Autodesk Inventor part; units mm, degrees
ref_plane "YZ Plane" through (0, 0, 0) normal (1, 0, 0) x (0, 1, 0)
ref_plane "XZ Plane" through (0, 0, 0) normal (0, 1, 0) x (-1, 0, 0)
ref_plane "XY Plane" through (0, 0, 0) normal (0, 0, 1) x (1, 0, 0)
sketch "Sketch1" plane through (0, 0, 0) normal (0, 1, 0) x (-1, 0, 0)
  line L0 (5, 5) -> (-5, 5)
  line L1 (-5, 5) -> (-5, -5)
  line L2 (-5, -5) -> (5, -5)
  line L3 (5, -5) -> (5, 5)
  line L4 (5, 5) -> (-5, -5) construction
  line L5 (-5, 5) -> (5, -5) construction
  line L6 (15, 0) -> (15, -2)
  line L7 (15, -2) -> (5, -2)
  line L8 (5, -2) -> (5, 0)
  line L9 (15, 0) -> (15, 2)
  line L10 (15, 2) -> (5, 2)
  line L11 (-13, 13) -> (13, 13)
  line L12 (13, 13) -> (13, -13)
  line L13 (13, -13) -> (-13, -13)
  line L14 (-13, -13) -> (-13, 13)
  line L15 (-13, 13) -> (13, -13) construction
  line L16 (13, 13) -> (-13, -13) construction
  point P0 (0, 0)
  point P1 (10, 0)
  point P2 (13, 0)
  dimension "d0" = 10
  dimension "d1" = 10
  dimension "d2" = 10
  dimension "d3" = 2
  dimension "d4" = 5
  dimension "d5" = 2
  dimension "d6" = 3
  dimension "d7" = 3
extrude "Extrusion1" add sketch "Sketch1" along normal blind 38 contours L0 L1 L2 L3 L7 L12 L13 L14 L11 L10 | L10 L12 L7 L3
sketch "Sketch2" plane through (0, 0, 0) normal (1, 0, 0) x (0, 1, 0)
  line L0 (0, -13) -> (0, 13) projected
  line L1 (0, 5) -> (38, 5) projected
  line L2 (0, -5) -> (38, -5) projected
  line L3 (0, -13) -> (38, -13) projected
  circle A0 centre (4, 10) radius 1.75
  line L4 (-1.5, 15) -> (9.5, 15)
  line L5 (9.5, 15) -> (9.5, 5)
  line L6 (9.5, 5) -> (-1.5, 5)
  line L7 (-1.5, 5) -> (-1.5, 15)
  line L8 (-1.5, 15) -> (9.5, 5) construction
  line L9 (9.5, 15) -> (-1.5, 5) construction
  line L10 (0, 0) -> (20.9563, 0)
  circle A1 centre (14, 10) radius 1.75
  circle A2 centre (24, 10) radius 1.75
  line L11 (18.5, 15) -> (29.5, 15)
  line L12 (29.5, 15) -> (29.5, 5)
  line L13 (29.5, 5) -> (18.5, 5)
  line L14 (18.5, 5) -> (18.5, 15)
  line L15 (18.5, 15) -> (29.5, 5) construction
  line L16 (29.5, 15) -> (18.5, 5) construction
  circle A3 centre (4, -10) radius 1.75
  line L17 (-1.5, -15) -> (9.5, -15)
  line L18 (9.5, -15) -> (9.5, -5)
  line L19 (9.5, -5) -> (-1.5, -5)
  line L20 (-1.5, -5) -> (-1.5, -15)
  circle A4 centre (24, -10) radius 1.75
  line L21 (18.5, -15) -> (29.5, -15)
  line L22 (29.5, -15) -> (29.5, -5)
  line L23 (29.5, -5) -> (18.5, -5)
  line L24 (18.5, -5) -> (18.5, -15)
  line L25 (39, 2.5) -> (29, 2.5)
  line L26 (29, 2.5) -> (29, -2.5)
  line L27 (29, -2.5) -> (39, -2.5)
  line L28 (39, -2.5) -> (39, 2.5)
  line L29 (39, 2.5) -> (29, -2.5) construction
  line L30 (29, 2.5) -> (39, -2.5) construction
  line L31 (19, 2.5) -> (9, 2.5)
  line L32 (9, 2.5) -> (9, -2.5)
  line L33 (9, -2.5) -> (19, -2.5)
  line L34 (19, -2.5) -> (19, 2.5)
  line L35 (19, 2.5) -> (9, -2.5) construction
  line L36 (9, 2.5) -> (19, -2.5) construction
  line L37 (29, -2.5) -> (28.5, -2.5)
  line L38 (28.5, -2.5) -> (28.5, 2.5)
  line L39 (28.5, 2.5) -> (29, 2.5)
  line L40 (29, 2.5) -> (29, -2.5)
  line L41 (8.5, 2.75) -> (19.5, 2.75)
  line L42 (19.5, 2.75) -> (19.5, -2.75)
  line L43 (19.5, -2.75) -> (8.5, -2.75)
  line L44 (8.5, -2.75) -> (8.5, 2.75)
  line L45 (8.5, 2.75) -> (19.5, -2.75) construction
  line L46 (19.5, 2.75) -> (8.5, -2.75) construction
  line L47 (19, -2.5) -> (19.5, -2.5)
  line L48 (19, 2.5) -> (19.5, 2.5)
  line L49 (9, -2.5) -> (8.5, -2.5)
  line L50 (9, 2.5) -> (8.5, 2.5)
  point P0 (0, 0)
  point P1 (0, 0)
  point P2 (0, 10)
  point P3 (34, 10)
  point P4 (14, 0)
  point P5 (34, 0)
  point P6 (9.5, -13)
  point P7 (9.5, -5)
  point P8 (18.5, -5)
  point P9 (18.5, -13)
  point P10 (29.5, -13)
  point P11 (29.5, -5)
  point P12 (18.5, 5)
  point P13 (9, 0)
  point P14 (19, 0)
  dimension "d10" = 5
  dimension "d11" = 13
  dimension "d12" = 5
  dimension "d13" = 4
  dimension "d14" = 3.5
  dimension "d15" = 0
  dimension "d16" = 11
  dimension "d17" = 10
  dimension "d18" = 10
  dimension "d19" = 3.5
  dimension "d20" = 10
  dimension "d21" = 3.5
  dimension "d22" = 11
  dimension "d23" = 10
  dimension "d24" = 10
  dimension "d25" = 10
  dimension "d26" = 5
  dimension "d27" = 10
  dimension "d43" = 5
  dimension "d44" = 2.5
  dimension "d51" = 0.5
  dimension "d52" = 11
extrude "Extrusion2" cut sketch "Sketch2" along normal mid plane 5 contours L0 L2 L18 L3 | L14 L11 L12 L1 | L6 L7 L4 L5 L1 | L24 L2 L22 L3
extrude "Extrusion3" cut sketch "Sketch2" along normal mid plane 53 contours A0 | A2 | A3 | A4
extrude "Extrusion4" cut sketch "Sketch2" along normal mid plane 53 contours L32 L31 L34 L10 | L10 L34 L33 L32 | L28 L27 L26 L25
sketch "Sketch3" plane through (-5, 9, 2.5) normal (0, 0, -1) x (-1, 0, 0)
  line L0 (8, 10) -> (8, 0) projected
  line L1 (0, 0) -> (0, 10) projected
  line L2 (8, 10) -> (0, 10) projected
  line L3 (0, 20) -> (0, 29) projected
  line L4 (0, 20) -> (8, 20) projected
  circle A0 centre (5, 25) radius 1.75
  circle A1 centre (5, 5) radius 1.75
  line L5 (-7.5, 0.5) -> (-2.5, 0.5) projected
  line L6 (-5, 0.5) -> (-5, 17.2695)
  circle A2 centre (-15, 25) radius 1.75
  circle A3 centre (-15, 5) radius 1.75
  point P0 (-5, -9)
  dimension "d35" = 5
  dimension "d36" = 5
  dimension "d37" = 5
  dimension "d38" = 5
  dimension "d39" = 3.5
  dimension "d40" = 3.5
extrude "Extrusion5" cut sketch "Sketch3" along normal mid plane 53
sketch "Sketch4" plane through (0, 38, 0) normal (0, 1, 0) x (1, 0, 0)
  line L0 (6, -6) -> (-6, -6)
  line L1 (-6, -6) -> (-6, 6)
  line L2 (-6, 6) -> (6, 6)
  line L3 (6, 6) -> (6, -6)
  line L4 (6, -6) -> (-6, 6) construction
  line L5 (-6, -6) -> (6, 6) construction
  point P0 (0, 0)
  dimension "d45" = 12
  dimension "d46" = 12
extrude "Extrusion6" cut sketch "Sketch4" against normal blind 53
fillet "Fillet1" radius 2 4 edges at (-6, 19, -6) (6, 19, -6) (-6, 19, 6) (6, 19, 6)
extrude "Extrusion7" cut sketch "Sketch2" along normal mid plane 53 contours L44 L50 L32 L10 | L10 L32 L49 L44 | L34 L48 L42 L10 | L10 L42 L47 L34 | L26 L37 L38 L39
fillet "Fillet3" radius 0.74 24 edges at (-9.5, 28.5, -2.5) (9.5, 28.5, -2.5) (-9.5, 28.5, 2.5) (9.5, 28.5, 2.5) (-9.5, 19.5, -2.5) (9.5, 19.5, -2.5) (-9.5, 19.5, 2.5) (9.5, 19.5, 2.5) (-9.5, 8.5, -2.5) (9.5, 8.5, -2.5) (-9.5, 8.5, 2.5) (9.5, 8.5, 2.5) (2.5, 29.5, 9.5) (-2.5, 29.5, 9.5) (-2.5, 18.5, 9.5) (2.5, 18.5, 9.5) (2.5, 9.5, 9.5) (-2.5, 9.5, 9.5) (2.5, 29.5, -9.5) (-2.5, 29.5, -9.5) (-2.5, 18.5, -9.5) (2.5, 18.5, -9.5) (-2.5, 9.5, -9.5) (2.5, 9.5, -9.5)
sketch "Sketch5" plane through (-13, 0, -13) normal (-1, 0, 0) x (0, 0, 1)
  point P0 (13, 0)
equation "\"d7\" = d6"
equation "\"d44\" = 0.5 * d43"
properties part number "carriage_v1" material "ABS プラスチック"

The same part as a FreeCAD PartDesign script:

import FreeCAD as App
import Part
import Sketcher

V = App.Vector
Q = App.Units.Quantity


def edges_at(feature, points):
    """Names of the edges that pass closest to the given points."""
    edges = feature.Shape.Edges
    near = lambda p: min(range(len(edges)), key=lambda i: edges[i].distToShape(Part.Vertex(*p))[0])
    return sorted({f"Edge{near(p) + 1}" for p in points})


def add_polygon(sketch, points):
    """Adds a closed chain of lines whose ends are joined by coincident constraints."""
    first, n = sketch.GeometryCount, len(points)
    for a, b in zip(points, points[1:] + points[:1]):
        sketch.addGeometry(Part.LineSegment(App.Vector(*a, 0), App.Vector(*b, 0)), False)
    for i in range(n):
        sketch.addConstraint(Sketcher.Constraint("Coincident", first + i, 2, first + (i + 1) % n, 1))

doc = App.newDocument("Part")
params = doc.addObject("Spreadsheet::Sheet", "Params")
for row, (alias, value) in enumerate([
    ("sketch1_width", "10 mm"),
    ("sketch1_width2", "26 mm"),
    ("pad1_length", "38 mm"),
    ("sketch2_diameter", "3.5 mm"),
    ("sketch2_width", "11 mm"),
    ("sketch2_height", "10 mm"),
    ("sketch2_width2", "9.5 mm"),
    ("pocket1_length", "5 mm"),
    ("sketch3_diameter", "3.5 mm"),
    ("pocket2_length", "53 mm"),
    ("sketch4_width", "10 mm"),
    ("sketch4_height", "5 mm"),
    ("pocket3_length", "53 mm"),
    ("sketch5_diameter", "3.5 mm"),
    ("pocket4_length", "53 mm"),
    ("sketch6_width", "12 mm"),
    ("pocket5_length", "53 mm"),
    ("fillet_radius", "2 mm"),
    ("sketch7_height", "5 mm"),
    ("sketch7_width", "0.5 mm"),
    ("pocket6_length", "53 mm"),
    ("fillet2_radius", "0.74 mm"),
], start=1):
    params.set(f"A{row}", alias)
    params.set(f"B{row}", "=" + value)
    params.setAlias(f"B{row}", alias)

body = doc.addObject("PartDesign::Body", "Body")

# Sketch on XZ plane
sketch1 = body.newObject("Sketcher::SketchObject", "Sketch")
sketch1.AttachmentSupport = (doc.getObject("XZ_Plane"), [""])
sketch1.MapMode = "FlatFace"
add_polygon(sketch1, [(-13, -13), (-13, 13), (13, 13), (13, -13)])  # lines 0-3
add_polygon(sketch1, [(5, 5), (-5, 5), (-5, -5), (5, -5)])  # lines 4-7
sketch1.addConstraint(Sketcher.Constraint("Vertical", 0))
sketch1.addConstraint(Sketcher.Constraint("Horizontal", 1))
sketch1.addConstraint(Sketcher.Constraint("Vertical", 2))
sketch1.addConstraint(Sketcher.Constraint("Horizontal", 3))
sketch1.addConstraint(Sketcher.Constraint("Horizontal", 4))
sketch1.addConstraint(Sketcher.Constraint("Vertical", 5))
sketch1.addConstraint(Sketcher.Constraint("Horizontal", 6))
sketch1.addConstraint(Sketcher.Constraint("Vertical", 7))
sketch1.addConstraint(Sketcher.Constraint("Symmetric", 0, 2, 2, 2, -1, 1))
sketch1.addConstraint(Sketcher.Constraint("Symmetric", 4, 2, 6, 2, -1, 1))
sketch1.addConstraint(Sketcher.Constraint("Equal", 3, 0))
sketch1.addConstraint(Sketcher.Constraint("Equal", 6, 5))
sketch1.addConstraint(Sketcher.Constraint("DistanceX", 4, 2, 4, 1, Q("10 mm")))
sketch1.addConstraint(Sketcher.Constraint("DistanceX", 1, 1, 1, 2, Q("26 mm")))
sketch1.setExpression("Constraints[20]", "Params.sketch1_width")
sketch1.setExpression("Constraints[21]", "Params.sketch1_width2")
pad1 = body.newObject("PartDesign::Pad", "Pad")
pad1.Profile = sketch1
pad1.setExpression("Length", "Params.pad1_length")
pad1.Reversed = True

# Sketch on YZ plane
sketch2 = body.newObject("Sketcher::SketchObject", "Sketch001")
sketch2.AttachmentSupport = (doc.getObject("YZ_Plane"), [""])
sketch2.MapMode = "FlatFace"
add_polygon(sketch2, [(0, -5), (0, -13), (9.5, -13), (9.5, -5)])  # lines 0-3
sketch2.addGeometry(Part.Circle(V(4, -10, 0), V(0, 0, 1), 1.75), False)  # 4
add_polygon(sketch2, [(18.5, 15), (18.5, 5), (29.5, 5), (29.5, 15)])  # lines 5-8
sketch2.addGeometry(Part.Circle(V(24, 10, 0), V(0, 0, 1), 1.75), False)  # 9
add_polygon(sketch2, [(-1.5, 5), (9.5, 5), (9.5, 15), (-1.5, 15)])  # lines 10-13
sketch2.addGeometry(Part.Circle(V(4, 10, 0), V(0, 0, 1), 1.75), False)  # 14
add_polygon(sketch2, [(18.5, -5), (18.5, -13), (29.5, -13), (29.5, -5)])  # lines 15-18
sketch2.addGeometry(Part.Circle(V(24, -10, 0), V(0, 0, 1), 1.75), False)  # 19
sketch2.addConstraint(Sketcher.Constraint("Vertical", 0))
sketch2.addConstraint(Sketcher.Constraint("Horizontal", 1))
sketch2.addConstraint(Sketcher.Constraint("Vertical", 2))
sketch2.addConstraint(Sketcher.Constraint("Horizontal", 3))
sketch2.addConstraint(Sketcher.Constraint("Vertical", 5))
sketch2.addConstraint(Sketcher.Constraint("Horizontal", 6))
sketch2.addConstraint(Sketcher.Constraint("Vertical", 7))
sketch2.addConstraint(Sketcher.Constraint("Horizontal", 8))
sketch2.addConstraint(Sketcher.Constraint("Horizontal", 10))
sketch2.addConstraint(Sketcher.Constraint("Vertical", 11))
sketch2.addConstraint(Sketcher.Constraint("Horizontal", 12))
sketch2.addConstraint(Sketcher.Constraint("Vertical", 13))
sketch2.addConstraint(Sketcher.Constraint("Vertical", 15))
sketch2.addConstraint(Sketcher.Constraint("Horizontal", 16))
sketch2.addConstraint(Sketcher.Constraint("Vertical", 17))
sketch2.addConstraint(Sketcher.Constraint("Horizontal", 18))
sketch2.addConstraint(Sketcher.Constraint("Equal", 4, 9))
sketch2.addConstraint(Sketcher.Constraint("Equal", 9, 14))
sketch2.addConstraint(Sketcher.Constraint("Equal", 14, 19))
sketch2.addConstraint(Sketcher.Constraint("Symmetric", 4, 3, 14, 3, -1))
sketch2.addConstraint(Sketcher.Constraint("Symmetric", 9, 3, 19, 3, -1))
sketch2.addConstraint(Sketcher.Constraint("Symmetric", 2, 2, 10, 2, -1))
sketch2.addConstraint(Sketcher.Constraint("Symmetric", 6, 2, 17, 2, -1))
sketch2.addConstraint(Sketcher.Constraint("PointOnObject", 0, 2, -2))
sketch2.addConstraint(Sketcher.Constraint("Horizontal", 9, 3, 14, 3))
sketch2.addConstraint(Sketcher.Constraint("Horizontal", 6, 2, 10, 2))
sketch2.addConstraint(Sketcher.Constraint("Horizontal", 8, 2, 11, 2))
sketch2.addConstraint(Sketcher.Constraint("Horizontal", 1, 2, 15, 2))
sketch2.addConstraint(Sketcher.Constraint("Vertical", 8, 2, 15, 2))
sketch2.addConstraint(Sketcher.Constraint("Equal", 8, 10))
sketch2.addConstraint(Sketcher.Constraint("Diameter", 4, Q("3.5 mm")))
sketch2.addConstraint(Sketcher.Constraint("DistanceX", 6, 1, 6, 2, Q("11 mm")))
sketch2.addConstraint(Sketcher.Constraint("DistanceY", 5, 2, 5, 1, Q("10 mm")))
sketch2.addConstraint(Sketcher.Constraint("DistanceX", -1, 1, 4, 3, Q("4 mm")))
sketch2.addConstraint(Sketcher.Constraint("DistanceY", 4, 3, -1, 1, Q("10 mm")))
sketch2.addConstraint(Sketcher.Constraint("DistanceY", 0, 2, -1, 1, Q("13 mm")))
sketch2.addConstraint(Sketcher.Constraint("DistanceY", 2, 2, -1, 1, Q("5 mm")))
sketch2.addConstraint(Sketcher.Constraint("DistanceX", 1, 1, 1, 2, Q("9.5 mm")))
sketch2.addConstraint(Sketcher.Constraint("DistanceX", -1, 1, 9, 3, Q("24 mm")))
sketch2.addConstraint(Sketcher.Constraint("DistanceX", 2, 2, 5, 2, Q("9 mm")))
sketch2.setExpression("Constraints[46]", "Params.sketch2_diameter")
sketch2.setExpression("Constraints[47]", "Params.sketch2_width")
sketch2.setExpression("Constraints[48]", "Params.sketch2_height")
sketch2.setExpression("Constraints[53]", "Params.sketch2_width2")
pocket1 = body.newObject("PartDesign::Pocket", "Pocket")
pocket1.Profile = sketch2
pocket1.setExpression("Length", "Params.pocket1_length")
pocket1.Midplane = True

# Sketch on YZ plane
sketch3 = body.newObject("Sketcher::SketchObject", "Sketch002")
sketch3.AttachmentSupport = (doc.getObject("YZ_Plane"), [""])
sketch3.MapMode = "FlatFace"
sketch3.addGeometry(Part.Circle(V(4, 10, 0), V(0, 0, 1), 1.75), False)
sketch3.addGeometry(Part.Circle(V(24, 10, 0), V(0, 0, 1), 1.75), False)
sketch3.addGeometry(Part.Circle(V(4, -10, 0), V(0, 0, 1), 1.75), False)
sketch3.addGeometry(Part.Circle(V(24, -10, 0), V(0, 0, 1), 1.75), False)
sketch3.addConstraint(Sketcher.Constraint("Equal", 0, 1))
sketch3.addConstraint(Sketcher.Constraint("Equal", 1, 2))
sketch3.addConstraint(Sketcher.Constraint("Equal", 2, 3))
sketch3.addConstraint(Sketcher.Constraint("Symmetric", 0, 3, 2, 3, -1))
sketch3.addConstraint(Sketcher.Constraint("Symmetric", 1, 3, 3, 3, -1))
sketch3.addConstraint(Sketcher.Constraint("Horizontal", 0, 3, 1, 3))
sketch3.addConstraint(Sketcher.Constraint("Diameter", 0, Q("3.5 mm")))
sketch3.addConstraint(Sketcher.Constraint("DistanceX", -1, 1, 0, 3, Q("4 mm")))
sketch3.addConstraint(Sketcher.Constraint("DistanceY", -1, 1, 0, 3, Q("10 mm")))
sketch3.addConstraint(Sketcher.Constraint("DistanceX", -1, 1, 1, 3, Q("24 mm")))
sketch3.setExpression("Constraints[6]", "Params.sketch3_diameter")
pocket2 = body.newObject("PartDesign::Pocket", "Pocket001")
pocket2.Profile = sketch3
pocket2.setExpression("Length", "Params.pocket2_length")
pocket2.Midplane = True

# Sketch on YZ plane
sketch4 = body.newObject("Sketcher::SketchObject", "Sketch003")
sketch4.AttachmentSupport = (doc.getObject("YZ_Plane"), [""])
sketch4.MapMode = "FlatFace"
add_polygon(sketch4, [(9, 2.5), (9, -2.5), (19, -2.5), (19, 2.5)])  # lines 0-3
add_polygon(sketch4, [(39, -2.5), (39, 2.5), (29, 2.5), (29, -2.5)])  # lines 4-7
sketch4.addConstraint(Sketcher.Constraint("Vertical", 0))
sketch4.addConstraint(Sketcher.Constraint("Horizontal", 1))
sketch4.addConstraint(Sketcher.Constraint("Vertical", 2))
sketch4.addConstraint(Sketcher.Constraint("Horizontal", 3))
sketch4.addConstraint(Sketcher.Constraint("Vertical", 4))
sketch4.addConstraint(Sketcher.Constraint("Horizontal", 5))
sketch4.addConstraint(Sketcher.Constraint("Vertical", 6))
sketch4.addConstraint(Sketcher.Constraint("Horizontal", 7))
sketch4.addConstraint(Sketcher.Constraint("Horizontal", 3, 2, 4, 2))
sketch4.addConstraint(Sketcher.Constraint("Horizontal", 1, 2, 6, 2))
sketch4.addConstraint(Sketcher.Constraint("Equal", 3, 5))
sketch4.addConstraint(Sketcher.Constraint("DistanceX", 1, 1, 1, 2, Q("10 mm")))
sketch4.addConstraint(Sketcher.Constraint("DistanceY", 0, 2, 0, 1, Q("5 mm")))
sketch4.addConstraint(Sketcher.Constraint("DistanceX", 2, 2, 5, 2, Q("10 mm")))
sketch4.addConstraint(Sketcher.Constraint("DistanceY", 0, 2, -1, 1, Q("2.5 mm")))
sketch4.addConstraint(Sketcher.Constraint("DistanceX", -1, 1, 0, 2, Q("9 mm")))
sketch4.setExpression("Constraints[19]", "Params.sketch4_width")
sketch4.setExpression("Constraints[20]", "Params.sketch4_height")
pocket3 = body.newObject("PartDesign::Pocket", "Pocket002")
pocket3.Profile = sketch4
pocket3.setExpression("Length", "Params.pocket3_length")
pocket3.Midplane = True

# Sketch on XY plane
sketch5 = body.newObject("Sketcher::SketchObject", "Sketch004")
sketch5.AttachmentSupport = (doc.getObject("XY_Plane"), [""])
sketch5.MapMode = "FlatFace"
sketch5.AttachmentOffset = App.Placement(V(0, 0, 2.5), App.Rotation())
sketch5.addGeometry(Part.Circle(V(-10, 34, 0), V(0, 0, 1), 1.75), False)
sketch5.addGeometry(Part.Circle(V(-10, 14, 0), V(0, 0, 1), 1.75), False)
sketch5.addGeometry(Part.Circle(V(10, 34, 0), V(0, 0, 1), 1.75), False)
sketch5.addGeometry(Part.Circle(V(10, 14, 0), V(0, 0, 1), 1.75), False)
sketch5.addConstraint(Sketcher.Constraint("Equal", 0, 1))
sketch5.addConstraint(Sketcher.Constraint("Equal", 1, 2))
sketch5.addConstraint(Sketcher.Constraint("Equal", 2, 3))
sketch5.addConstraint(Sketcher.Constraint("Symmetric", 0, 3, 2, 3, -2))
sketch5.addConstraint(Sketcher.Constraint("Symmetric", 1, 3, 3, 3, -2))
sketch5.addConstraint(Sketcher.Constraint("Vertical", 0, 3, 1, 3))
sketch5.addConstraint(Sketcher.Constraint("Diameter", 0, Q("3.5 mm")))
sketch5.addConstraint(Sketcher.Constraint("DistanceX", 0, 3, -1, 1, Q("10 mm")))
sketch5.addConstraint(Sketcher.Constraint("DistanceY", -1, 1, 0, 3, Q("34 mm")))
sketch5.addConstraint(Sketcher.Constraint("DistanceY", -1, 1, 1, 3, Q("14 mm")))
sketch5.setExpression("Constraints[6]", "Params.sketch5_diameter")
pocket4 = body.newObject("PartDesign::Pocket", "Pocket003")
pocket4.Profile = sketch5
pocket4.setExpression("Length", "Params.pocket4_length")
pocket4.Midplane = True

# Sketch on XZ plane
sketch6 = body.newObject("Sketcher::SketchObject", "Sketch005")
sketch6.AttachmentSupport = (doc.getObject("XZ_Plane"), [""])
sketch6.MapMode = "FlatFace"
sketch6.AttachmentOffset = App.Placement(V(0, 0, -38), App.Rotation())
add_polygon(sketch6, [(-6, 6), (6, 6), (6, -6), (-6, -6)])  # lines 0-3
sketch6.addConstraint(Sketcher.Constraint("Horizontal", 0))
sketch6.addConstraint(Sketcher.Constraint("Vertical", 1))
sketch6.addConstraint(Sketcher.Constraint("Horizontal", 2))
sketch6.addConstraint(Sketcher.Constraint("Vertical", 3))
sketch6.addConstraint(Sketcher.Constraint("Symmetric", 0, 2, 2, 2, -1, 1))
sketch6.addConstraint(Sketcher.Constraint("Equal", 2, 1))
sketch6.addConstraint(Sketcher.Constraint("DistanceX", 0, 1, 0, 2, Q("12 mm")))
sketch6.setExpression("Constraints[10]", "Params.sketch6_width")
pocket5 = body.newObject("PartDesign::Pocket", "Pocket004")
pocket5.Profile = sketch6
pocket5.setExpression("Length", "Params.pocket5_length")
pocket5.Reversed = True
doc.recompute()

fillet = body.newObject("PartDesign::Fillet", "Fillet")
fillet.Base = (pocket5, edges_at(pocket5, [
    (-6, 19, -6),
    (6, 19, -6),
    (-6, 19, 6),
    (6, 19, 6),
]))
fillet.setExpression("Radius", "Params.fillet_radius")

# Sketch on YZ plane
sketch7 = body.newObject("Sketcher::SketchObject", "Sketch006")
sketch7.AttachmentSupport = (doc.getObject("YZ_Plane"), [""])
sketch7.MapMode = "FlatFace"
add_polygon(sketch7, [(8.5, 2.5), (8.5, -2.5), (9, -2.5), (9, 2.5)])  # lines 0-3
add_polygon(sketch7, [(19, 2.5), (19, -2.5), (19.5, -2.5), (19.5, 2.5)])  # lines 4-7
add_polygon(sketch7, [(29, -2.5), (29, 2.5), (28.5, 2.5), (28.5, -2.5)])  # lines 8-11
sketch7.addConstraint(Sketcher.Constraint("Vertical", 0))
sketch7.addConstraint(Sketcher.Constraint("Horizontal", 1))
sketch7.addConstraint(Sketcher.Constraint("Vertical", 2))
sketch7.addConstraint(Sketcher.Constraint("Horizontal", 3))
sketch7.addConstraint(Sketcher.Constraint("Vertical", 4))
sketch7.addConstraint(Sketcher.Constraint("Horizontal", 5))
sketch7.addConstraint(Sketcher.Constraint("Vertical", 6))
sketch7.addConstraint(Sketcher.Constraint("Horizontal", 7))
sketch7.addConstraint(Sketcher.Constraint("Vertical", 8))
sketch7.addConstraint(Sketcher.Constraint("Horizontal", 9))
sketch7.addConstraint(Sketcher.Constraint("Vertical", 10))
sketch7.addConstraint(Sketcher.Constraint("Horizontal", 11))
sketch7.addConstraint(Sketcher.Constraint("Horizontal", 1, 2, 4, 2))
sketch7.addConstraint(Sketcher.Constraint("Horizontal", 3, 2, 6, 2))
sketch7.addConstraint(Sketcher.Constraint("Horizontal", 7, 2, 8, 2))
sketch7.addConstraint(Sketcher.Constraint("Horizontal", 5, 2, 10, 2))
sketch7.addConstraint(Sketcher.Constraint("Equal", 3, 5))
sketch7.addConstraint(Sketcher.Constraint("Equal", 7, 9))
sketch7.addConstraint(Sketcher.Constraint("DistanceY", 0, 2, 0, 1, Q("5 mm")))
sketch7.addConstraint(Sketcher.Constraint("DistanceX", 1, 1, 1, 2, Q("0.5 mm")))
sketch7.addConstraint(Sketcher.Constraint("DistanceX", 1, 2, 4, 2, Q("10 mm")))
sketch7.addConstraint(Sketcher.Constraint("DistanceX", 7, 2, 8, 2, Q("10 mm")))
sketch7.addConstraint(Sketcher.Constraint("DistanceY", 0, 2, -1, 1, Q("2.5 mm")))
sketch7.addConstraint(Sketcher.Constraint("DistanceX", -1, 1, 1, 2, Q("9 mm")))
sketch7.setExpression("Constraints[30]", "Params.sketch7_height")
sketch7.setExpression("Constraints[31]", "Params.sketch7_width")
pocket6 = body.newObject("PartDesign::Pocket", "Pocket005")
pocket6.Profile = sketch7
pocket6.setExpression("Length", "Params.pocket6_length")
pocket6.Midplane = True
doc.recompute()

fillet2 = body.newObject("PartDesign::Fillet", "Fillet001")
fillet2.Base = (pocket6, edges_at(pocket6, [
    (-9.5, 28.5, -2.5),
    (9.5, 28.5, -2.5),
    (-9.5, 28.5, 2.5),
    (9.5, 28.5, 2.5),
    (-9.5, 19.5, -2.5),
    (9.5, 19.5, -2.5),
    (-9.5, 19.5, 2.5),
    (9.5, 19.5, 2.5),
    (-9.5, 8.5, -2.5),
    (9.5, 8.5, -2.5),
    (-9.5, 8.5, 2.5),
    (9.5, 8.5, 2.5),
    (2.5, 29.5, 9.5),
    (-2.5, 29.5, 9.5),
    (-2.5, 18.5, 9.5),
    (2.5, 18.5, 9.5),
    (2.5, 9.5, 9.5),
    (-2.5, 9.5, 9.5),
    (2.5, 29.5, -9.5),
    (-2.5, 29.5, -9.5),
    (-2.5, 18.5, -9.5),
    (2.5, 18.5, -9.5),
    (-2.5, 9.5, -9.5),
    (2.5, 9.5, -9.5),
]))
fillet2.setExpression("Radius", "Params.fillet2_radius")

doc.recompute()
